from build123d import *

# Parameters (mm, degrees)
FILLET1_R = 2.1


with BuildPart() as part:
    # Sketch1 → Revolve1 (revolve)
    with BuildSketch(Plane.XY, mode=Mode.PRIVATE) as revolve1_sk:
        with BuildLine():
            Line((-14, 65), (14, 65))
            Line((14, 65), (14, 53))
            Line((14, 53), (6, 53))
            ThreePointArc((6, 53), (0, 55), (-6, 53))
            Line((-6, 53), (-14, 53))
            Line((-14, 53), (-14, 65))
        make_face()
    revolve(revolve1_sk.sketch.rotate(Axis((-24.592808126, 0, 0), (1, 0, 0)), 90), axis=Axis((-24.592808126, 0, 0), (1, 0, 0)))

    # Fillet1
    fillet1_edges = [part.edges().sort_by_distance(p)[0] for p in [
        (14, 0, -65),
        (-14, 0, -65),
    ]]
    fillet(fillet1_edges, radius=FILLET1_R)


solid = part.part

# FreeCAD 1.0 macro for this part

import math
import FreeCAD as App
import Part
import Sketcher

V = App.Vector
Q = App.Units.Quantity


def edges_at(feature, points):
    """Names of the edges that pass closest to the given points."""
    edges = feature.Shape.Edges
    near = lambda p: min(range(len(edges)), key=lambda i: edges[i].distToShape(Part.Vertex(*p))[0])
    return sorted({f"Edge{near(p) + 1}" for p in points})

doc = App.newDocument("Part")
body = doc.addObject("PartDesign::Body", "Body")

# Sketch on XY plane
sketch1 = body.newObject("Sketcher::SketchObject", "Sketch")
sketch1.AttachmentSupport = (doc.getObject("XY_Plane"), [""])
sketch1.MapMode = "FlatFace"
sketch1.addGeometry(Part.LineSegment(V(14, 65, 0), V(-14, 65, 0)), False)
sketch1.addGeometry(Part.LineSegment(V(-14, 65, 0), V(-14, 53, 0)), False)
sketch1.addGeometry(Part.LineSegment(V(-14, 53, 0), V(-6, 53, 0)), False)
sketch1.addGeometry(Part.ArcOfCircle(Part.Circle(V(0, 45, 0), V(0, 0, 1), 10), math.radians(53), math.radians(127)), False)
sketch1.addGeometry(Part.LineSegment(V(6, 53, 0), V(14, 53, 0)), False)
sketch1.addGeometry(Part.LineSegment(V(14, 53, 0), V(14, 65, 0)), False)
sketch1.addConstraint(Sketcher.Constraint("Coincident", 0, 2, 1, 1))
sketch1.addConstraint(Sketcher.Constraint("Coincident", 1, 2, 2, 1))
sketch1.addConstraint(Sketcher.Constraint("Coincident", 2, 2, 3, 2))
sketch1.addConstraint(Sketcher.Constraint("Coincident", 3, 1, 4, 1))
sketch1.addConstraint(Sketcher.Constraint("Coincident", 4, 2, 5, 1))
sketch1.addConstraint(Sketcher.Constraint("Coincident", 5, 2, 0, 1))
sketch1.addConstraint(Sketcher.Constraint("Horizontal", 0))
sketch1.addConstraint(Sketcher.Constraint("Vertical", 1))
sketch1.addConstraint(Sketcher.Constraint("Horizontal", 2))
sketch1.addConstraint(Sketcher.Constraint("Horizontal", 4))
sketch1.addConstraint(Sketcher.Constraint("Vertical", 5))
sketch1.addConstraint(Sketcher.Constraint("Symmetric", 2, 2, 3, 1, -2))
sketch1.addConstraint(Sketcher.Constraint("Equal", 2, 4))
sketch1.addConstraint(Sketcher.Constraint("Radius", 3, Q("10 mm")))
sketch1.addConstraint(Sketcher.Constraint("DistanceX", 0, 2, 0, 1, Q("28 mm")))
sketch1.addConstraint(Sketcher.Constraint("DistanceX", 2, 1, 2, 2, Q("8 mm")))
sketch1.addConstraint(Sketcher.Constraint("DistanceY", 1, 2, 1, 1, Q("12 mm")))
sketch1.addConstraint(Sketcher.Constraint("DistanceY", -1, 1, 3, 3, Q("45 mm")))
revolution = body.newObject("PartDesign::Revolution", "Revolution")
revolution.Profile = sketch1
revolution.ReferenceAxis = (sketch1, ["H_Axis"])
revolution.Angle = 360
doc.recompute()

fillet = body.newObject("PartDesign::Fillet", "Fillet")
fillet.Base = (revolution, edges_at(revolution, [(14, 0, -65), (-14, 0, -65)]))
fillet.Radius = 2.1

doc.recompute()
